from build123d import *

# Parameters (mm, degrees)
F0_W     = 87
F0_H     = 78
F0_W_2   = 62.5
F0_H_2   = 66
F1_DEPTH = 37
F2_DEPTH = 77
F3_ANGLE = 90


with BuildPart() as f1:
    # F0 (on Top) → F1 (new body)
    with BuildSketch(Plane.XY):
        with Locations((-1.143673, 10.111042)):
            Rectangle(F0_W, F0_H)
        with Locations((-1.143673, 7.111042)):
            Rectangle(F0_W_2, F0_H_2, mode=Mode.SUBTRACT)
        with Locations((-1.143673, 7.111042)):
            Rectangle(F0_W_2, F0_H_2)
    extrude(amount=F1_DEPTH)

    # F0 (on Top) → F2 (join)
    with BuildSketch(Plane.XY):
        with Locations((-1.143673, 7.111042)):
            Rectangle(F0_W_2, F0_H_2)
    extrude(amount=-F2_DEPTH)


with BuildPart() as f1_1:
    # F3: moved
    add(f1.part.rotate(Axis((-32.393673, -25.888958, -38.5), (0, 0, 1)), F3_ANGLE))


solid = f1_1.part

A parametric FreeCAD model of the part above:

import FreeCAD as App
import Part
import Sketcher

V = App.Vector


def add_polygon(sketch, points):
    """Adds a closed chain of lines whose ends are joined by coincident constraints."""
    first, n = sketch.GeometryCount, len(points)
    for a, b in zip(points, points[1:] + points[:1]):
        sketch.addGeometry(Part.LineSegment(App.Vector(*a, 0), App.Vector(*b, 0)), False)
    for i in range(n):
        sketch.addConstraint(Sketcher.Constraint("Coincident", first + i, 2, first + (i + 1) % n, 1))

doc = App.newDocument("Part")
body = doc.addObject("PartDesign::Body", "Body")

# Sketch on XY plane
sketch1 = body.newObject("Sketcher::SketchObject", "Sketch")
sketch1.AttachmentSupport = (doc.getObject("XY_Plane"), [""])
sketch1.MapMode = "FlatFace"
add_polygon(sketch1, [(-44.643673, 49.111042), (-44.643673, -28.888958), (42.356327, -28.888958), (42.356327, 49.111042)])  # lines 0-3
sketch1.addConstraint([
    Sketcher.Constraint("Vertical", 0),
    Sketcher.Constraint("Horizontal", 1),
    Sketcher.Constraint("Vertical", 2),
    Sketcher.Constraint("Horizontal", 3),
    Sketcher.Constraint("DistanceX", 1, 1, 1, 2, 87.0),
    Sketcher.Constraint("DistanceY", 0, 2, 0, 1, 78.0),
    Sketcher.Constraint("DistanceY", -1, 1, 2, 2, 49.111042),
    Sketcher.Constraint("DistanceX", 0, 2, -1, 1, 44.643673),
])
pad1 = body.newObject("PartDesign::Pad", "Pad")
pad1.Profile = sketch1
pad1.Length = 37

# Sketch on XY plane
sketch2 = body.newObject("Sketcher::SketchObject", "Sketch001")
sketch2.AttachmentSupport = (doc.getObject("XY_Plane"), [""])
sketch2.MapMode = "FlatFace"
add_polygon(sketch2, [(-32.393673, 40.111042), (-32.393673, -25.888958), (30.106327, -25.888958), (30.106327, 40.111042)])  # lines 0-3
sketch2.addConstraint([
    Sketcher.Constraint("Vertical", 0),
    Sketcher.Constraint("Horizontal", 1),
    Sketcher.Constraint("Vertical", 2),
    Sketcher.Constraint("Horizontal", 3),
    Sketcher.Constraint("DistanceY", 0, 2, 0, 1, 66.0),
    Sketcher.Constraint("DistanceX", 1, 1, 1, 2, 62.5),
    Sketcher.Constraint("DistanceY", -1, 1, 2, 2, 40.111042),
    Sketcher.Constraint("DistanceX", 0, 2, -1, 1, 32.393673),
])
pad2 = body.newObject("PartDesign::Pad", "Pad001")
pad2.Profile = sketch2
pad2.Length = 77
pad2.Reversed = True
body2 = doc.addObject("PartDesign::Body", "Body001")
doc.recompute()

body.Placement = App.Placement(V(-58.282631, 6.504715, 0), App.Rotation(V(0, 0, 1), 90))
boolean = body2.newObject("PartDesign::Boolean", "Boolean")
boolean.Type = "Fuse"
boolean.addObjects([body])

doc.recompute()
